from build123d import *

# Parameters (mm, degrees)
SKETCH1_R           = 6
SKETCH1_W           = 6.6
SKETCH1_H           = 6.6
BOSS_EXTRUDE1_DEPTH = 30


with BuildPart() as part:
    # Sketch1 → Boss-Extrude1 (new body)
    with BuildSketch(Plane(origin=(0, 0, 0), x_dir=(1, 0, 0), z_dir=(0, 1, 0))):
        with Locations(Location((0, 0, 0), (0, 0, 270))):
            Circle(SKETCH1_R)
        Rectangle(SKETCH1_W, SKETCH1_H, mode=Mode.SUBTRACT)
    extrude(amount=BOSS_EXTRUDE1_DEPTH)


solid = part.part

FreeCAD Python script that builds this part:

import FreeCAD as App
import Part
import Sketcher


def add_polygon(sketch, points):
    """Adds a closed chain of lines whose ends are joined by coincident constraints."""
    first, n = sketch.GeometryCount, len(points)
    for a, b in zip(points, points[1:] + points[:1]):
        sketch.addGeometry(Part.LineSegment(App.Vector(*a, 0), App.Vector(*b, 0)), False)
    for i in range(n):
        sketch.addConstraint(Sketcher.Constraint("Coincident", first + i, 2, first + (i + 1) % n, 1))

doc = App.newDocument("Part")
body = doc.addObject("PartDesign::Body", "Body")

# Sketch on XZ plane
sketch1 = body.newObject("Sketcher::SketchObject", "Sketch")
sketch1.AttachmentSupport = (doc.getObject("XZ_Plane"), [""])
sketch1.MapMode = "FlatFace"
sketch1.addGeometry(Part.Circle(App.Vector(0, 0, 0), App.Vector(0, 0, 1), 6), False)  # 0
add_polygon(sketch1, [(3, 3), (-3, 3), (-3, -3), (3, -3)])  # lines 1-4
sketch1.addConstraint(Sketcher.Constraint("Horizontal", 1))
sketch1.addConstraint(Sketcher.Constraint("Vertical", 2))
sketch1.addConstraint(Sketcher.Constraint("Horizontal", 3))
sketch1.addConstraint(Sketcher.Constraint("Vertical", 4))
sketch1.addConstraint(Sketcher.Constraint("Coincident", 0, 3, -1, 1))
sketch1.addConstraint(Sketcher.Constraint("Symmetric", 1, 2, 3, 2, -1, 1))
sketch1.addConstraint(Sketcher.Constraint("Equal", 3, 2))
sketch1.addConstraint(Sketcher.Constraint("Diameter", 0, 12.0))
sketch1.addConstraint(Sketcher.Constraint("DistanceX", 1, 2, 1, 1, 6.6))
pad1 = body.newObject("PartDesign::Pad", "Pad")
pad1.Profile = sketch1
pad1.Length = 30
pad1.Reversed = True

doc.recompute()
